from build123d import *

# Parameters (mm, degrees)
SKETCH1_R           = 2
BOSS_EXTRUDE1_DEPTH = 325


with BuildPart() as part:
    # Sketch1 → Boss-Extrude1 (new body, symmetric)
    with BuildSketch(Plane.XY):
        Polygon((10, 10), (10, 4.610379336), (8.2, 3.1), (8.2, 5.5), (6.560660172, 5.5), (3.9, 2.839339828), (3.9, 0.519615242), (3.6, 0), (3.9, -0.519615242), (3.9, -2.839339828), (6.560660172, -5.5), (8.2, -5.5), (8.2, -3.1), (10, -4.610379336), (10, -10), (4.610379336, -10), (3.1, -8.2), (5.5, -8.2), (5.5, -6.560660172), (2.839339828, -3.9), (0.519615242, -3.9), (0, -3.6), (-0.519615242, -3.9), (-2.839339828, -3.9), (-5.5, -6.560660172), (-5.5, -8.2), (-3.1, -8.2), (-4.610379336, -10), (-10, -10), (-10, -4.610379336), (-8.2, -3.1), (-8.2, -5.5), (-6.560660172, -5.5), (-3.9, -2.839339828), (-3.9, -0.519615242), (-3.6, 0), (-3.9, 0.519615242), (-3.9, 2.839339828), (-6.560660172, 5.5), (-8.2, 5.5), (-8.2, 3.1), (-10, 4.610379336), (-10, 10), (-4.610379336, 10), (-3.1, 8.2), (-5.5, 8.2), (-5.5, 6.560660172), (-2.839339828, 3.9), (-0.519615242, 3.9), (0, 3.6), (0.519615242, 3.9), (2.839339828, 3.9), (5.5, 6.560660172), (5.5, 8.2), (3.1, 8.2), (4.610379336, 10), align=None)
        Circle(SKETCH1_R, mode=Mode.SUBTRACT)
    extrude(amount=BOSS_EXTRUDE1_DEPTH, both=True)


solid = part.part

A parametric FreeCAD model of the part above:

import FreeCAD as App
import Part
import Sketcher
from FreeCAD import Vector
Q = App.Units.Quantity

doc = App.newDocument("Part")
body = doc.addObject("PartDesign::Body", "Body")

# Sketch on XY plane
sketch1 = body.newObject("Sketcher::SketchObject", "Sketch")
sketch1.AttachmentSupport = (doc.getObject("XY_Plane"), [""])
sketch1.MapMode = "FlatFace"
sketch1.addGeometry([
    Part.LineSegment(Vector(10, 4.610379, 0), Vector(10, 10, 0)),  # 0
    Part.LineSegment(Vector(10, 10, 0), Vector(4.610379, 10, 0)),  # 1
    Part.LineSegment(Vector(4.610379, 10, 0), Vector(3.1, 8.2, 0)),  # 2
    Part.LineSegment(Vector(3.1, 8.2, 0), Vector(5.5, 8.2, 0)),  # 3
    Part.LineSegment(Vector(5.5, 8.2, 0), Vector(5.5, 6.56066, 0)),  # 4
    Part.LineSegment(Vector(5.5, 6.56066, 0), Vector(2.83934, 3.9, 0)),  # 5
    Part.LineSegment(Vector(2.83934, 3.9, 0), Vector(0.519615, 3.9, 0)),  # 6
    Part.LineSegment(Vector(0.519615, 3.9, 0), Vector(0, 3.6, 0)),  # 7
    Part.LineSegment(Vector(0, 3.6, 0), Vector(-0.519615, 3.9, 0)),  # 8
    Part.LineSegment(Vector(-0.519615, 3.9, 0), Vector(-2.83934, 3.9, 0)),  # 9
    Part.LineSegment(Vector(-2.83934, 3.9, 0), Vector(-5.5, 6.56066, 0)),  # 10
    Part.LineSegment(Vector(-5.5, 6.56066, 0), Vector(-5.5, 8.2, 0)),  # 11
    Part.LineSegment(Vector(-5.5, 8.2, 0), Vector(-3.1, 8.2, 0)),  # 12
    Part.LineSegment(Vector(-3.1, 8.2, 0), Vector(-4.610379, 10, 0)),  # 13
    Part.LineSegment(Vector(-4.610379, 10, 0), Vector(-10, 10, 0)),  # 14
    Part.LineSegment(Vector(-10, 10, 0), Vector(-10, 4.610379, 0)),  # 15
    Part.LineSegment(Vector(-10, 4.610379, 0), Vector(-8.2, 3.1, 0)),  # 16
    Part.LineSegment(Vector(-8.2, 3.1, 0), Vector(-8.2, 5.5, 0)),  # 17
    Part.LineSegment(Vector(-8.2, 5.5, 0), Vector(-6.56066, 5.5, 0)),  # 18
    Part.LineSegment(Vector(-6.56066, 5.5, 0), Vector(-3.9, 2.83934, 0)),  # 19
    Part.LineSegment(Vector(-3.9, 2.83934, 0), Vector(-3.9, 0.519615, 0)),  # 20
    Part.LineSegment(Vector(-3.9, 0.519615, 0), Vector(-3.6, 0, 0)),  # 21
    Part.LineSegment(Vector(-3.6, 0, 0), Vector(-3.9, -0.519615, 0)),  # 22
    Part.LineSegment(Vector(-3.9, -0.519615, 0), Vector(-3.9, -2.83934, 0)),  # 23
    Part.LineSegment(Vector(-3.9, -2.83934, 0), Vector(-6.56066, -5.5, 0)),  # 24
    Part.LineSegment(Vector(-6.56066, -5.5, 0), Vector(-8.2, -5.5, 0)),  # 25
    Part.LineSegment(Vector(-8.2, -5.5, 0), Vector(-8.2, -3.1, 0)),  # 26
    Part.LineSegment(Vector(-8.2, -3.1, 0), Vector(-10, -4.610379, 0)),  # 27
    Part.LineSegment(Vector(-10, -4.610379, 0), Vector(-10, -10, 0)),  # 28
    Part.LineSegment(Vector(-10, -10, 0), Vector(-4.610379, -10, 0)),  # 29
    Part.LineSegment(Vector(-4.610379, -10, 0), Vector(-3.1, -8.2, 0)),  # 30
    Part.LineSegment(Vector(-3.1, -8.2, 0), Vector(-5.5, -8.2, 0)),  # 31
    Part.LineSegment(Vector(-5.5, -8.2, 0), Vector(-5.5, -6.56066, 0)),  # 32
    Part.LineSegment(Vector(-5.5, -6.56066, 0), Vector(-2.83934, -3.9, 0)),  # 33
    Part.LineSegment(Vector(-2.83934, -3.9, 0), Vector(-0.519615, -3.9, 0)),  # 34
    Part.LineSegment(Vector(-0.519615, -3.9, 0), Vector(0, -3.6, 0)),  # 35
    Part.LineSegment(Vector(0, -3.6, 0), Vector(0.519615, -3.9, 0)),  # 36
    Part.LineSegment(Vector(0.519615, -3.9, 0), Vector(2.83934, -3.9, 0)),  # 37
    Part.LineSegment(Vector(2.83934, -3.9, 0), Vector(5.5, -6.56066, 0)),  # 38
    Part.LineSegment(Vector(5.5, -6.56066, 0), Vector(5.5, -8.2, 0)),  # 39
    Part.LineSegment(Vector(5.5, -8.2, 0), Vector(3.1, -8.2, 0)),  # 40
    Part.LineSegment(Vector(3.1, -8.2, 0), Vector(4.610379, -10, 0)),  # 41
    Part.LineSegment(Vector(4.610379, -10, 0), Vector(10, -10, 0)),  # 42
    Part.LineSegment(Vector(10, -10, 0), Vector(10, -4.610379, 0)),  # 43
    Part.LineSegment(Vector(10, -4.610379, 0), Vector(8.2, -3.1, 0)),  # 44
    Part.LineSegment(Vector(8.2, -3.1, 0), Vector(8.2, -5.5, 0)),  # 45
    Part.LineSegment(Vector(8.2, -5.5, 0), Vector(6.56066, -5.5, 0)),  # 46
    Part.LineSegment(Vector(6.56066, -5.5, 0), Vector(3.9, -2.83934, 0)),  # 47
    Part.LineSegment(Vector(3.9, -2.83934, 0), Vector(3.9, -0.519615, 0)),  # 48
    Part.LineSegment(Vector(3.9, -0.519615, 0), Vector(3.6, 0, 0)),  # 49
    Part.LineSegment(Vector(3.6, 0, 0), Vector(3.9, 0.519615, 0)),  # 50
    Part.LineSegment(Vector(3.9, 0.519615, 0), Vector(3.9, 2.83934, 0)),  # 51
    Part.LineSegment(Vector(3.9, 2.83934, 0), Vector(6.56066, 5.5, 0)),  # 52
    Part.LineSegment(Vector(6.56066, 5.5, 0), Vector(8.2, 5.5, 0)),  # 53
    Part.LineSegment(Vector(8.2, 5.5, 0), Vector(8.2, 3.1, 0)),  # 54
    Part.LineSegment(Vector(8.2, 3.1, 0), Vector(10, 4.610379, 0)),  # 55
    Part.Circle(Vector(0, 0, 0), Vector(0, 0, 1), 2),  # 56
], False)
sketch1.addConstraint([
    Sketcher.Constraint("Coincident", 0, 2, 1, 1),
    Sketcher.Constraint("Coincident", 1, 2, 2, 1),
    Sketcher.Constraint("Coincident", 2, 2, 3, 1),
    Sketcher.Constraint("Coincident", 3, 2, 4, 1),
    Sketcher.Constraint("Coincident", 4, 2, 5, 1),
    Sketcher.Constraint("Coincident", 5, 2, 6, 1),
    Sketcher.Constraint("Coincident", 6, 2, 7, 1),
    Sketcher.Constraint("Coincident", 7, 2, 8, 1),
    Sketcher.Constraint("Coincident", 8, 2, 9, 1),
    Sketcher.Constraint("Coincident", 9, 2, 10, 1),
    Sketcher.Constraint("Coincident", 10, 2, 11, 1),
    Sketcher.Constraint("Coincident", 11, 2, 12, 1),
    Sketcher.Constraint("Coincident", 12, 2, 13, 1),
    Sketcher.Constraint("Coincident", 13, 2, 14, 1),
    Sketcher.Constraint("Coincident", 14, 2, 15, 1),
    Sketcher.Constraint("Coincident", 15, 2, 16, 1),
    Sketcher.Constraint("Coincident", 16, 2, 17, 1),
    Sketcher.Constraint("Coincident", 17, 2, 18, 1),
    Sketcher.Constraint("Coincident", 18, 2, 19, 1),
    Sketcher.Constraint("Coincident", 19, 2, 20, 1),
    Sketcher.Constraint("Coincident", 20, 2, 21, 1),
    Sketcher.Constraint("Coincident", 21, 2, 22, 1),
    Sketcher.Constraint("Coincident", 22, 2, 23, 1),
    Sketcher.Constraint("Coincident", 23, 2, 24, 1),
    Sketcher.Constraint("Coincident", 24, 2, 25, 1),
    Sketcher.Constraint("Coincident", 25, 2, 26, 1),
    Sketcher.Constraint("Coincident", 26, 2, 27, 1),
    Sketcher.Constraint("Coincident", 27, 2, 28, 1),
    Sketcher.Constraint("Coincident", 28, 2, 29, 1),
    Sketcher.Constraint("Coincident", 29, 2, 30, 1),
    Sketcher.Constraint("Coincident", 30, 2, 31, 1),
    Sketcher.Constraint("Coincident", 31, 2, 32, 1),
    Sketcher.Constraint("Coincident", 32, 2, 33, 1),
    Sketcher.Constraint("Coincident", 33, 2, 34, 1),
    Sketcher.Constraint("Coincident", 34, 2, 35, 1),
    Sketcher.Constraint("Coincident", 35, 2, 36, 1),
    Sketcher.Constraint("Coincident", 36, 2, 37, 1),
    Sketcher.Constraint("Coincident", 37, 2, 38, 1),
    Sketcher.Constraint("Coincident", 38, 2, 39, 1),
    Sketcher.Constraint("Coincident", 39, 2, 40, 1),
    Sketcher.Constraint("Coincident", 40, 2, 41, 1),
    Sketcher.Constraint("Coincident", 41, 2, 42, 1),
    Sketcher.Constraint("Coincident", 42, 2, 43, 1),
    Sketcher.Constraint("Coincident", 43, 2, 44, 1),
    Sketcher.Constraint("Coincident", 44, 2, 45, 1),
    Sketcher.Constraint("Coincident", 45, 2, 46, 1),
    Sketcher.Constraint("Coincident", 46, 2, 47, 1),
    Sketcher.Constraint("Coincident", 47, 2, 48, 1),
    Sketcher.Constraint("Coincident", 48, 2, 49, 1),
    Sketcher.Constraint("Coincident", 49, 2, 50, 1),
    Sketcher.Constraint("Coincident", 50, 2, 51, 1),
    Sketcher.Constraint("Coincident", 51, 2, 52, 1),
    Sketcher.Constraint("Coincident", 52, 2, 53, 1),
    Sketcher.Constraint("Coincident", 53, 2, 54, 1),
    Sketcher.Constraint("Coincident", 54, 2, 55, 1),
    Sketcher.Constraint("Coincident", 55, 2, 0, 1),
    Sketcher.Constraint("Vertical", 0),
    Sketcher.Constraint("Horizontal", 1),
    Sketcher.Constraint("Horizontal", 3),
    Sketcher.Constraint("Vertical", 4),
    Sketcher.Constraint("Horizontal", 6),
    Sketcher.Constraint("Horizontal", 9),
    Sketcher.Constraint("Vertical", 11),
    Sketcher.Constraint("Horizontal", 12),
    Sketcher.Constraint("Horizontal", 14),
    Sketcher.Constraint("Vertical", 15),
    Sketcher.Constraint("Vertical", 17),
    Sketcher.Constraint("Horizontal", 18),
    Sketcher.Constraint("Vertical", 20),
    Sketcher.Constraint("Vertical", 23),
    Sketcher.Constraint("Horizontal", 25),
    Sketcher.Constraint("Vertical", 26),
    Sketcher.Constraint("Vertical", 28),
    Sketcher.Constraint("Horizontal", 29),
    Sketcher.Constraint("Horizontal", 31),
    Sketcher.Constraint("Vertical", 32),
    Sketcher.Constraint("Horizontal", 34),
    Sketcher.Constraint("Horizontal", 37),
    Sketcher.Constraint("Vertical", 39),
    Sketcher.Constraint("Horizontal", 40),
    Sketcher.Constraint("Horizontal", 42),
    Sketcher.Constraint("Vertical", 43),
    Sketcher.Constraint("Vertical", 45),
    Sketcher.Constraint("Horizontal", 46),
    Sketcher.Constraint("Vertical", 48),
    Sketcher.Constraint("Vertical", 51),
    Sketcher.Constraint("Horizontal", 53),
    Sketcher.Constraint("Vertical", 54),
    Sketcher.Constraint("Coincident", 56, 3, -1, 1),
    Sketcher.Constraint("Symmetric", 0, 2, 28, 2, -1, 1),
    Sketcher.Constraint("Symmetric", 2, 2, 30, 2, -1, 1),
    Sketcher.Constraint("Symmetric", 4, 2, 32, 2, -1, 1),
    Sketcher.Constraint("Symmetric", 5, 2, 33, 2, -1, 1),
    Sketcher.Constraint("Symmetric", 7, 2, 35, 2, -1, 1),
    Sketcher.Constraint("Symmetric", 8, 2, 36, 2, -1, 1),
    Sketcher.Constraint("Symmetric", 10, 2, 38, 2, -1, 1),
    Sketcher.Constraint("Symmetric", 12, 2, 40, 2, -1, 1),
    Sketcher.Constraint("Symmetric", 13, 2, 41, 2, -1, 1),
    Sketcher.Constraint("Symmetric", 15, 2, 43, 2, -1, 1),
    Sketcher.Constraint("Symmetric", 16, 2, 44, 2, -1, 1),
    Sketcher.Constraint("Symmetric", 18, 2, 46, 2, -1, 1),
    Sketcher.Constraint("Symmetric", 19, 2, 47, 2, -1, 1),
    Sketcher.Constraint("Symmetric", 21, 2, 49, 2, -1, 1),
    Sketcher.Constraint("Symmetric", 22, 2, 50, 2, -1, 1),
    Sketcher.Constraint("Symmetric", 24, 2, 52, 2, -1, 1),
    Sketcher.Constraint("Symmetric", 26, 2, 54, 2, -1, 1),
    Sketcher.Constraint("Symmetric", 6, 2, 8, 2, -2),
    Sketcher.Constraint("Symmetric", 4, 2, 10, 2, -2),
    Sketcher.Constraint("Symmetric", 2, 2, 12, 2, -2),
    Sketcher.Constraint("Symmetric", 1, 2, 13, 2, -2),
    Sketcher.Constraint("Symmetric", 27, 2, 43, 2, -2),
    Sketcher.Constraint("Symmetric", 26, 2, 44, 2, -2),
    Sketcher.Constraint("Symmetric", 24, 2, 46, 2, -2),
    Sketcher.Constraint("Symmetric", 23, 2, 47, 2, -2),
    Sketcher.Constraint("PointOnObject", 7, 2, -2),
    Sketcher.Constraint("PointOnObject", 21, 2, -1),
    Sketcher.Constraint("Perpendicular", 5, 10),
    Sketcher.Constraint("Perpendicular", 2, 16),
    Sketcher.Constraint("Parallel", 10, 19),
    Sketcher.Constraint("Perpendicular", 7, 21),
    Sketcher.Constraint("Perpendicular", 8, 22),
    Sketcher.Constraint("Perpendicular", 19, 24),
    Sketcher.Constraint("Perpendicular", 16, 30),
    Sketcher.Constraint("Perpendicular", 21, 35),
    Sketcher.Constraint("Perpendicular", 33, 38),
    Sketcher.Constraint("Perpendicular", 35, 49),
    Sketcher.Constraint("Perpendicular", 47, 52),
    Sketcher.Constraint("Perpendicular", 41, 55),
    Sketcher.Constraint("Equal", 42, 0),
    Sketcher.Constraint("Equal", 53, 4),
    Sketcher.Constraint("Equal", 40, 17),
    Sketcher.Constraint("Equal", 37, 20),
    Sketcher.Constraint("Equal", 13, 16),
    Sketcher.Constraint("Equal", 10, 19),
    Sketcher.Constraint("Equal", 8, 21),
    Sketcher.Constraint("Diameter", 56, 4.0),
    Sketcher.Constraint("Angle", 2, Q("-130 deg")),
    Sketcher.Constraint("Angle", 7, Q("-150 deg")),
    Sketcher.Constraint("DistanceX", 3, 1, 3, 2, 2.4),
    Sketcher.Constraint("DistanceX", -1, 1, 0, 2, 10.0),
    Sketcher.Constraint("Distance", 7, 0.6),
    Sketcher.Constraint("DistanceX", -1, 1, 2, 2, 3.1),
    Sketcher.Constraint("DistanceY", -1, 1, 2, 2, 8.2),
    Sketcher.Constraint("DistanceY", -1, 1, 5, 2, 3.9),
    Sketcher.Constraint("DistanceX", 18, 1, 18, 2, 1.63934),
])
pad1 = body.newObject("PartDesign::Pad", "Pad")
pad1.Profile = sketch1
pad1.Length = 650
pad1.Midplane = True

doc.recompute()
